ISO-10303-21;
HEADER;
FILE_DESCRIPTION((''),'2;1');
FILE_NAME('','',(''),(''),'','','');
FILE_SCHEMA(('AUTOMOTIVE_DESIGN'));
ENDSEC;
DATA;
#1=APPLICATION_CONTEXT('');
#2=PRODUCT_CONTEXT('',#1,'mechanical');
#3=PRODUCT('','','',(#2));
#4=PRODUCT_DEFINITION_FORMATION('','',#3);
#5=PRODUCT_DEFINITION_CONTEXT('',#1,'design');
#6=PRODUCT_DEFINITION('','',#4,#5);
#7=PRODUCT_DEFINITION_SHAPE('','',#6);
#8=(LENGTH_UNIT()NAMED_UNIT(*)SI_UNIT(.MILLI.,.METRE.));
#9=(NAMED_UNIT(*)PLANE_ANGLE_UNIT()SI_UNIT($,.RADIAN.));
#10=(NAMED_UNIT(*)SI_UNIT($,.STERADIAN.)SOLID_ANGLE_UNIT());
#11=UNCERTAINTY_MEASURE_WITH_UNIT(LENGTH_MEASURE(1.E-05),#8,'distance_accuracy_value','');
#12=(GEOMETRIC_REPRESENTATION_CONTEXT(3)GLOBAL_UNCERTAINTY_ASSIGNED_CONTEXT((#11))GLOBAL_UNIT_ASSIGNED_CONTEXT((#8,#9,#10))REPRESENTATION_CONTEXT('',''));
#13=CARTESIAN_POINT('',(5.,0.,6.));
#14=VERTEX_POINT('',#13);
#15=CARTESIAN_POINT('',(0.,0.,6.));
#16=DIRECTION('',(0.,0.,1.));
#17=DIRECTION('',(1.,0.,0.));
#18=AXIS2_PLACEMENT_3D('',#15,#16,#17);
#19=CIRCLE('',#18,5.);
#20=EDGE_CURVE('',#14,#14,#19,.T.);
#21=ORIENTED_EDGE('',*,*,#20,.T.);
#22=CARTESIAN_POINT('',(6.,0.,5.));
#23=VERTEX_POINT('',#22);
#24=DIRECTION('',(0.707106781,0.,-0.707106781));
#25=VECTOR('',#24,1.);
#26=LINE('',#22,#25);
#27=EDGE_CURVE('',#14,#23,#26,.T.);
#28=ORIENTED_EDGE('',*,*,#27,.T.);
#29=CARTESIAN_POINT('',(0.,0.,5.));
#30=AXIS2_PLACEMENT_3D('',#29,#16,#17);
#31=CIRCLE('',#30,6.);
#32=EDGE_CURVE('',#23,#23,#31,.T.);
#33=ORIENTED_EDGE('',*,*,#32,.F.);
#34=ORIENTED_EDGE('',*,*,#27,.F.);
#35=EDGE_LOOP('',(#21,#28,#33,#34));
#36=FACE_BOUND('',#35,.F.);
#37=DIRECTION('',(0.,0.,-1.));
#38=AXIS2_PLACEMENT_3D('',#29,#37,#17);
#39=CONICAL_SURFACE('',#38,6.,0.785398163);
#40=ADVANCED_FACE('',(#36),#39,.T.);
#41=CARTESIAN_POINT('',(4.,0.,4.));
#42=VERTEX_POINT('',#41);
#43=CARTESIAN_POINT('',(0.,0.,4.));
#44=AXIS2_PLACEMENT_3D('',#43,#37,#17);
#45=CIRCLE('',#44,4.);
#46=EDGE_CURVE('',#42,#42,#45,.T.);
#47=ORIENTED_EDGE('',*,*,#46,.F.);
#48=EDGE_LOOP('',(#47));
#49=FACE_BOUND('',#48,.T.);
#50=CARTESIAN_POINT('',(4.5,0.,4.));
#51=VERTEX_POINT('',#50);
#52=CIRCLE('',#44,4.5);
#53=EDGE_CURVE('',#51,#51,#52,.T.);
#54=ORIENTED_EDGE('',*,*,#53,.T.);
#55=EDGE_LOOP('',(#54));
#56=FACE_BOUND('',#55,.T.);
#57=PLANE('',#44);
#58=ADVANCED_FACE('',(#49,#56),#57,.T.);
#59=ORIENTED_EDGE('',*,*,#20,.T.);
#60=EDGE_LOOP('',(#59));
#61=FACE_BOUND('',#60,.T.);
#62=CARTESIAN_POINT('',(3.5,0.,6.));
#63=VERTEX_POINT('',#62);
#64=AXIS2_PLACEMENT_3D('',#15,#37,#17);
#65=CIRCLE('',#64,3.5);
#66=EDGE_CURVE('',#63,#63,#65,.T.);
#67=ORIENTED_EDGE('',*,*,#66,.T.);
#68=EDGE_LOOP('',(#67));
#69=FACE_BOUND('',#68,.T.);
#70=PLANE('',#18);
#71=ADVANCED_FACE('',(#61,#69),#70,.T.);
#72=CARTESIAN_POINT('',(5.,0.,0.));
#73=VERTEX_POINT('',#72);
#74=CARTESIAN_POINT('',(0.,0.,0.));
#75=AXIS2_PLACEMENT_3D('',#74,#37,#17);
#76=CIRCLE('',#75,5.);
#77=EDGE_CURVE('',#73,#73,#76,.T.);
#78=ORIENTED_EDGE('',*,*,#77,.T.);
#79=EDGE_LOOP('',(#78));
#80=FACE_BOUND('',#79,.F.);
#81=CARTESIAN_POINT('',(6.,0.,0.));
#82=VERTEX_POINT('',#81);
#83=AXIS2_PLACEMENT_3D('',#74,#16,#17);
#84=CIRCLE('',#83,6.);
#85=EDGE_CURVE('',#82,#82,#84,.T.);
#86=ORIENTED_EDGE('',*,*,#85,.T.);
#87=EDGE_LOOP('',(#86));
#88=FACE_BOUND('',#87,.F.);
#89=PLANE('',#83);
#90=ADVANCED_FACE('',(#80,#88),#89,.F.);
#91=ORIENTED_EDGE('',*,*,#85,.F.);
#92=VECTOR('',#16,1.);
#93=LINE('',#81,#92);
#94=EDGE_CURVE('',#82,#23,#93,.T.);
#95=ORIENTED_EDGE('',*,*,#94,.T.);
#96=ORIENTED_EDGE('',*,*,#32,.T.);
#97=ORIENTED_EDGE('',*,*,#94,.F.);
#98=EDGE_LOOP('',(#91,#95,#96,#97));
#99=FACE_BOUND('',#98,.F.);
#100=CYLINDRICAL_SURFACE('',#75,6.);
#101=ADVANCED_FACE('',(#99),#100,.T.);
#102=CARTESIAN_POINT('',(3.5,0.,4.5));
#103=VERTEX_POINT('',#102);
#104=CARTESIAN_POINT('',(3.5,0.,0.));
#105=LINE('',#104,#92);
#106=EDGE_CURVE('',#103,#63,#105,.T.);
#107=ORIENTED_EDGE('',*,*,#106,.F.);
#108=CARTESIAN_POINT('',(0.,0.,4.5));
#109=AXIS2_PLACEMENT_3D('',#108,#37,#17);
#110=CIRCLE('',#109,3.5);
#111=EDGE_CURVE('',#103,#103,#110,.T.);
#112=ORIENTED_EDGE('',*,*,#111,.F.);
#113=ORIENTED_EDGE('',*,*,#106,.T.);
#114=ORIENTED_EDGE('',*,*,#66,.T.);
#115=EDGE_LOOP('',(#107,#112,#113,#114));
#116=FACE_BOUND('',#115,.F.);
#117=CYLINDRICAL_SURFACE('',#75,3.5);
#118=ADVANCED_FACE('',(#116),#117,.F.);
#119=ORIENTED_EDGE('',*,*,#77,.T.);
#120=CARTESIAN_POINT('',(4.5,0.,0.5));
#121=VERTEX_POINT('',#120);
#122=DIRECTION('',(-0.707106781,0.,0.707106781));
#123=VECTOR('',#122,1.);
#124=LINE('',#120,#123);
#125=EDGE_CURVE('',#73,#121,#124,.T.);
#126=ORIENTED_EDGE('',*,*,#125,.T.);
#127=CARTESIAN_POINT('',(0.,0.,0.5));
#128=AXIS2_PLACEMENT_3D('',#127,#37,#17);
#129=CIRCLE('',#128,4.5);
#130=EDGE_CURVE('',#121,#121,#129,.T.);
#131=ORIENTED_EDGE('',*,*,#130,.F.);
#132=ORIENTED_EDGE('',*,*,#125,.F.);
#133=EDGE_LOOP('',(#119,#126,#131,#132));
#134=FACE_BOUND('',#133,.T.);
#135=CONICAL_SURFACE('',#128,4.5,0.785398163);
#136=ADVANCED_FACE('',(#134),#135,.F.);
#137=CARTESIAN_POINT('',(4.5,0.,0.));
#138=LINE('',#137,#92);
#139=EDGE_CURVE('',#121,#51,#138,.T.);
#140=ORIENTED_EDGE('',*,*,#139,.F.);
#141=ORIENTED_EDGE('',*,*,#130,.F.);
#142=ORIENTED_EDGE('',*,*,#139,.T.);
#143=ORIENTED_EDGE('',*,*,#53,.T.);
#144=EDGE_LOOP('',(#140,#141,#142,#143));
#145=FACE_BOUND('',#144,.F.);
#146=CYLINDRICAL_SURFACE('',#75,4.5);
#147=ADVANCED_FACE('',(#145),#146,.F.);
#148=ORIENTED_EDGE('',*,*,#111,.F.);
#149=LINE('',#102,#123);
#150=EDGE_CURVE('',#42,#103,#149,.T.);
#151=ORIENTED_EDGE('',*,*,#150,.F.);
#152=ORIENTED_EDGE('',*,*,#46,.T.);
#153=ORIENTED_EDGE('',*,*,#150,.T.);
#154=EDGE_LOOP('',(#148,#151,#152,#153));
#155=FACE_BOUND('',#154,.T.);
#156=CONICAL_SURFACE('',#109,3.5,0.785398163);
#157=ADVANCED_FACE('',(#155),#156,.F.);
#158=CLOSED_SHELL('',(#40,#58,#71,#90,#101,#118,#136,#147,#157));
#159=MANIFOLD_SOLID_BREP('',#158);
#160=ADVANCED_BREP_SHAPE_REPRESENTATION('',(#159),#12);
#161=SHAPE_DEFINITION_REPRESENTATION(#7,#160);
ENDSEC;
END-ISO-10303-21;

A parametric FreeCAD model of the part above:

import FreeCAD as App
import Part
import Sketcher
Q = App.Units.Quantity


def edges_at(feature, points):
    """Names of the edges that pass closest to the given points."""
    edges = feature.Shape.Edges
    near = lambda p: min(range(len(edges)), key=lambda i: edges[i].distToShape(Part.Vertex(*p))[0])
    return sorted({f"Edge{near(p) + 1}" for p in points})

doc = App.newDocument("Part")
body = doc.addObject("PartDesign::Body", "Body")

# Sketch on XY plane
sketch1 = doc.addObject("Sketcher::SketchObject", "Sketch")
body.addObject(sketch1)
sketch1.AttachmentSupport = (doc.XY_Plane, [""])
sketch1.MapMode = "FlatFace"
sketch1.addGeometry(Part.Circle(App.Vector(0, 0, 0), App.Vector(0, 0, 1), 6), False)
sketch1.addConstraint([
    Sketcher.Constraint("Coincident", 0, 3, -1, 1),
    Sketcher.Constraint("Diameter", 0, Q("12 mm")),
])
pad1 = doc.addObject("PartDesign::Pad", "Pad")
body.addObject(pad1)
pad1.Profile = sketch1
pad1.Length = 6

# Sketch on XY plane
sketch2 = doc.addObject("Sketcher::SketchObject", "Sketch001")
body.addObject(sketch2)
sketch2.AttachmentSupport = (doc.XY_Plane, [""])
sketch2.MapMode = "FlatFace"
sketch2.addGeometry(Part.Circle(App.Vector(0, 0, 0), App.Vector(0, 0, 1), 3.5), False)
sketch2.addConstraint([
    Sketcher.Constraint("Coincident", 0, 3, -1, 1),
    Sketcher.Constraint("Diameter", 0, Q("7 mm")),
])
pocket1 = doc.addObject("PartDesign::Pocket", "Pocket")
body.addObject(pocket1)
pocket1.Profile = sketch2
pocket1.Type = "ThroughAll"
pocket1.Reversed = True

# Sketch on XY plane
sketch3 = doc.addObject("Sketcher::SketchObject", "Sketch002")
body.addObject(sketch3)
sketch3.AttachmentSupport = (doc.XY_Plane, [""])
sketch3.MapMode = "FlatFace"
sketch3.addGeometry(Part.Circle(App.Vector(0, 0, 0), App.Vector(0, 0, 1), 4.5), False)
sketch3.addConstraint([
    Sketcher.Constraint("Coincident", 0, 3, -1, 1),
    Sketcher.Constraint("Diameter", 0, Q("9 mm")),
])
pocket2 = doc.addObject("PartDesign::Pocket", "Pocket001")
body.addObject(pocket2)
pocket2.Profile = sketch3
pocket2.Length = 4
pocket2.Reversed = True
doc.recompute()

chamfer = doc.addObject("PartDesign::Chamfer", "Chamfer")
body.addObject(chamfer)
chamfer.Base = (pocket2, edges_at(pocket2, [(-4.5, 0, 0)]))
chamfer.Size = 0.5
doc.recompute()

chamfer2 = doc.addObject("PartDesign::Chamfer", "Chamfer001")
body.addObject(chamfer2)
chamfer2.Base = (chamfer, edges_at(chamfer, [(-3.5, 0, 4)]))
chamfer2.Size = 0.5
doc.recompute()

chamfer3 = doc.addObject("PartDesign::Chamfer", "Chamfer002")
body.addObject(chamfer3)
chamfer3.Base = (chamfer2, edges_at(chamfer2, [(-6, 0, 6)]))
chamfer3.Size = 1

doc.recompute()
